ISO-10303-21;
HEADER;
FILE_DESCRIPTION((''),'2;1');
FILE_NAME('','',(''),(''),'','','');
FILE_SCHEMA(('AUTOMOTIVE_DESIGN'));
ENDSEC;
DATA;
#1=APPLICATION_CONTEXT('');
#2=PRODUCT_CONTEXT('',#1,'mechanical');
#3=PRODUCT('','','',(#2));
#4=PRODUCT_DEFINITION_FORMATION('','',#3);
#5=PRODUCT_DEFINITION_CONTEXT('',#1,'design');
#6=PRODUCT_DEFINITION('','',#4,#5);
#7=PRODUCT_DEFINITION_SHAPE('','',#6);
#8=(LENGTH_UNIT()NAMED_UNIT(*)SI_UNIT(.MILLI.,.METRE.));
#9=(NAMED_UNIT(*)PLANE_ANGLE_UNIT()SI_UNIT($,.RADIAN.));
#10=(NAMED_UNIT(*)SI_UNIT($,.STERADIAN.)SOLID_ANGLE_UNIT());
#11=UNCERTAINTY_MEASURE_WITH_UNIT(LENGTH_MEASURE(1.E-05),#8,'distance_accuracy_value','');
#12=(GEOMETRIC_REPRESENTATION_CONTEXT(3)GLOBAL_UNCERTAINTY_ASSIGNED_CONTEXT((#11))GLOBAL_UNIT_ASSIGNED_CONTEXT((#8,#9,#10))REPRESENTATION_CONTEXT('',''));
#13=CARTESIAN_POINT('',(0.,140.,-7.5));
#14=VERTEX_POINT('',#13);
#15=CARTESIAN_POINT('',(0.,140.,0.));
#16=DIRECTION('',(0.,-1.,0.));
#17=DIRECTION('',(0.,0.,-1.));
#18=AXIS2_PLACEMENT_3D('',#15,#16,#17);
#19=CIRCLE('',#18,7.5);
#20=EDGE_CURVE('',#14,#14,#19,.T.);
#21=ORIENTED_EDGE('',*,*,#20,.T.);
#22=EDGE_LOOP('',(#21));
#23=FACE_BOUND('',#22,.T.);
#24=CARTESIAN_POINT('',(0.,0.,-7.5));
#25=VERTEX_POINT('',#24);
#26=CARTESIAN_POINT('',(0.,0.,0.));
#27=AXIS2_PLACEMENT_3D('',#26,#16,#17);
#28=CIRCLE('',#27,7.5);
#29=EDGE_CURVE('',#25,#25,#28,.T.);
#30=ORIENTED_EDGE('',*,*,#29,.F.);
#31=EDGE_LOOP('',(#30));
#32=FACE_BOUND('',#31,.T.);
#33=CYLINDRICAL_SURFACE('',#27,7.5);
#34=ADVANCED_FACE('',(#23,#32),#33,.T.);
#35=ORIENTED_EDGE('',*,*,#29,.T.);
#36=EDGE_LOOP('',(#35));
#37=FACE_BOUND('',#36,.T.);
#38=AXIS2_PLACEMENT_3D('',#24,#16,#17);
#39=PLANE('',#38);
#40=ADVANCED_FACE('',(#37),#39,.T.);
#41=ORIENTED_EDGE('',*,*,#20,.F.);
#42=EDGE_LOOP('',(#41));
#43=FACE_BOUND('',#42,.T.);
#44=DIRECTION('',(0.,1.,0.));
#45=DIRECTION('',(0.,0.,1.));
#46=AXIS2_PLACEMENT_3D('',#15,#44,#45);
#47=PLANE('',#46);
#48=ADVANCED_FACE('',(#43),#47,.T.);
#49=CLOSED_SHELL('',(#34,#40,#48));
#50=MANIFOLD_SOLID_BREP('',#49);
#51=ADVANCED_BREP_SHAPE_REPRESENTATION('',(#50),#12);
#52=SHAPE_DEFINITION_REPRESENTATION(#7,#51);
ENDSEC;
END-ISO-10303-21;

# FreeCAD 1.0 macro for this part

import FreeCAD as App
import Part
import Sketcher
Q = App.Units.Quantity


def add_polygon(sketch, points):
    """Adds a closed chain of lines whose ends are joined by coincident constraints."""
    first, n = sketch.GeometryCount, len(points)
    for a, b in zip(points, points[1:] + points[:1]):
        sketch.addGeometry(Part.LineSegment(App.Vector(*a, 0), App.Vector(*b, 0)), False)
    for i in range(n):
        sketch.addConstraint(Sketcher.Constraint("Coincident", first + i, 2, first + (i + 1) % n, 1))

doc = App.newDocument("Part")
body = doc.addObject("PartDesign::Body", "Body")

sketch1 = body.newObject("Sketcher::SketchObject", "Sketch")
sketch1.AttachmentSupport = (doc.getObject("YZ_Plane"), [""])
sketch1.MapMode = "FlatFace"
add_polygon(sketch1, [(140, 0), (0, 0), (0, -7.5), (140, -7.5)])
sketch1.addConstraint([
    Sketcher.Constraint("Horizontal", 0),
    Sketcher.Constraint("Vertical", 1),
    Sketcher.Constraint("Horizontal", 2),
    Sketcher.Constraint("Vertical", 3),
    Sketcher.Constraint("Coincident", 0, 2, -1, 1),
    Sketcher.Constraint("DistanceX", 0, 2, 0, 1, Q("140 mm")),
    Sketcher.Constraint("DistanceY", 1, 2, 1, 1, Q("7.5 mm")),
])
revolution = body.newObject("PartDesign::Revolution", "Revolution")
revolution.Profile = sketch1
revolution.ReferenceAxis = (sketch1, ["H_Axis"])
revolution.Angle = 360

doc.recompute()
